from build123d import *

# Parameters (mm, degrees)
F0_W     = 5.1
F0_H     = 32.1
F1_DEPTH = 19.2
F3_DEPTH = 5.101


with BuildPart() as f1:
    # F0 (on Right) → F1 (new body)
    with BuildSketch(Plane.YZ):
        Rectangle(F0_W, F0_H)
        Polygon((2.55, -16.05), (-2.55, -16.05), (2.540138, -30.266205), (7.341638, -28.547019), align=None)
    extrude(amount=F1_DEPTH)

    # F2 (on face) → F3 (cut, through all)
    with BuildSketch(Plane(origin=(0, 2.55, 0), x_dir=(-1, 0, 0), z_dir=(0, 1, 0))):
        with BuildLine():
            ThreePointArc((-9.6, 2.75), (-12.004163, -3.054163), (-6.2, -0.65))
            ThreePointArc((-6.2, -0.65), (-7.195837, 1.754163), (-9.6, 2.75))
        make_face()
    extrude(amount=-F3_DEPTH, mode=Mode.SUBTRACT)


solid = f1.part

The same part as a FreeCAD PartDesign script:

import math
import FreeCAD as App
import Part
import Sketcher
from FreeCAD import Vector
Q = App.Units.Quantity


def add_polygon(sketch, points):
    """Adds a closed chain of lines whose ends are joined by coincident constraints."""
    first, n = sketch.GeometryCount, len(points)
    for a, b in zip(points, points[1:] + points[:1]):
        sketch.addGeometry(Part.LineSegment(App.Vector(*a, 0), App.Vector(*b, 0)), False)
    for i in range(n):
        sketch.addConstraint(Sketcher.Constraint("Coincident", first + i, 2, first + (i + 1) % n, 1))

doc = App.newDocument("Part")
params = doc.addObject("Spreadsheet::Sheet", "Params")
for row, (alias, value) in enumerate([
    ("sketch1_width", "5.1 mm"),
    ("sketch1_height", "32.1 mm"),
    ("sketch1_length", "15.1 mm"),
    ("sketch1_length2", "5.1 mm"),
    ("pad1_length", "19.2 mm"),
    ("sketch2_radius", "3.4 mm"),
], start=1):
    params.set(f"A{row}", alias)
    params.set(f"B{row}", "=" + value)
    params.setAlias(f"B{row}", alias)

body = doc.addObject("PartDesign::Body", "Body")

sketch1 = body.newObject("Sketcher::SketchObject", "Sketch")
sketch1.AttachmentSupport = (doc.getObject("YZ_Plane"), [""])
sketch1.MapMode = "FlatFace"
add_polygon(sketch1, [(-2.55, 16.05), (-2.55, -16.05), (2.540138, -30.266205), (7.341638, -28.547019), (2.55, -16.05), (2.55, 16.05)])
sketch1.addConstraint([
    Sketcher.Constraint("Vertical", 0),
    Sketcher.Constraint("Vertical", 4),
    Sketcher.Constraint("Horizontal", 5),
    Sketcher.Constraint("Symmetric", 0, 2, 4, 2, -1, 1),
    Sketcher.Constraint("Perpendicular", 1, 2),
    Sketcher.Constraint("Horizontal", 0, 2, 3, 2),
    Sketcher.Constraint("DistanceX", 5, 2, 5, 1, Q("5.1 mm")),
    Sketcher.Constraint("DistanceY", 0, 2, 0, 1, Q("32.1 mm")),
    Sketcher.Constraint("Angle", 1, Q("-70.300001 deg")),
    Sketcher.Constraint("Distance", 1, Q("15.1 mm")),
    Sketcher.Constraint("Distance", 2, Q("5.1 mm")),
])
sketch1.setExpression("Constraints[12]", "Params.sketch1_width")
sketch1.setExpression("Constraints[13]", "Params.sketch1_height")
sketch1.setExpression("Constraints[15]", "Params.sketch1_length")
sketch1.setExpression("Constraints[16]", "Params.sketch1_length2")
pad1 = body.newObject("PartDesign::Pad", "Pad")
pad1.Profile = sketch1
pad1.setExpression("Length", "Params.pad1_length")

sketch2 = body.newObject("Sketcher::SketchObject", "Sketch001")
sketch2.AttachmentSupport = (doc.getObject("XZ_Plane"), [""])
sketch2.MapMode = "FlatFace"
sketch2.AttachmentOffset = App.Placement(Vector(0, 0, -2.55), App.Rotation())
sketch2.addGeometry([
    Part.ArcOfCircle(Part.Circle(Vector(9.6, -0.65, 0), Vector(0, 0, 1), 3.4), math.radians(-179.999999), math.radians(89.999999)),
    Part.ArcOfCircle(Part.Circle(Vector(9.6, -0.65, 0), Vector(0, 0, 1), 3.4), math.radians(90.000003), math.radians(179.999997)),
], False)
sketch2.addConstraint([
    Sketcher.Constraint("Tangent", 0, 1, 1, 2),
    Sketcher.Constraint("Coincident", 1, 1, 0, 2),
    Sketcher.Constraint("Horizontal", 1, 3, 0, 1),
    Sketcher.Constraint("Vertical", 0, 3, 1, 1),
    Sketcher.Constraint("Radius", 0, Q("3.4 mm")),
    Sketcher.Constraint("DistanceX", -1, 1, 0, 3, Q("9.6 mm")),
    Sketcher.Constraint("DistanceY", 0, 3, -1, 1, Q("0.65 mm")),
])
sketch2.setExpression("Constraints[4]", "Params.sketch2_radius")
pocket1 = body.newObject("PartDesign::Pocket", "Pocket")
pocket1.Profile = sketch2
pocket1.Type = "ThroughAll"
pocket1.Reversed = True

doc.recompute()
